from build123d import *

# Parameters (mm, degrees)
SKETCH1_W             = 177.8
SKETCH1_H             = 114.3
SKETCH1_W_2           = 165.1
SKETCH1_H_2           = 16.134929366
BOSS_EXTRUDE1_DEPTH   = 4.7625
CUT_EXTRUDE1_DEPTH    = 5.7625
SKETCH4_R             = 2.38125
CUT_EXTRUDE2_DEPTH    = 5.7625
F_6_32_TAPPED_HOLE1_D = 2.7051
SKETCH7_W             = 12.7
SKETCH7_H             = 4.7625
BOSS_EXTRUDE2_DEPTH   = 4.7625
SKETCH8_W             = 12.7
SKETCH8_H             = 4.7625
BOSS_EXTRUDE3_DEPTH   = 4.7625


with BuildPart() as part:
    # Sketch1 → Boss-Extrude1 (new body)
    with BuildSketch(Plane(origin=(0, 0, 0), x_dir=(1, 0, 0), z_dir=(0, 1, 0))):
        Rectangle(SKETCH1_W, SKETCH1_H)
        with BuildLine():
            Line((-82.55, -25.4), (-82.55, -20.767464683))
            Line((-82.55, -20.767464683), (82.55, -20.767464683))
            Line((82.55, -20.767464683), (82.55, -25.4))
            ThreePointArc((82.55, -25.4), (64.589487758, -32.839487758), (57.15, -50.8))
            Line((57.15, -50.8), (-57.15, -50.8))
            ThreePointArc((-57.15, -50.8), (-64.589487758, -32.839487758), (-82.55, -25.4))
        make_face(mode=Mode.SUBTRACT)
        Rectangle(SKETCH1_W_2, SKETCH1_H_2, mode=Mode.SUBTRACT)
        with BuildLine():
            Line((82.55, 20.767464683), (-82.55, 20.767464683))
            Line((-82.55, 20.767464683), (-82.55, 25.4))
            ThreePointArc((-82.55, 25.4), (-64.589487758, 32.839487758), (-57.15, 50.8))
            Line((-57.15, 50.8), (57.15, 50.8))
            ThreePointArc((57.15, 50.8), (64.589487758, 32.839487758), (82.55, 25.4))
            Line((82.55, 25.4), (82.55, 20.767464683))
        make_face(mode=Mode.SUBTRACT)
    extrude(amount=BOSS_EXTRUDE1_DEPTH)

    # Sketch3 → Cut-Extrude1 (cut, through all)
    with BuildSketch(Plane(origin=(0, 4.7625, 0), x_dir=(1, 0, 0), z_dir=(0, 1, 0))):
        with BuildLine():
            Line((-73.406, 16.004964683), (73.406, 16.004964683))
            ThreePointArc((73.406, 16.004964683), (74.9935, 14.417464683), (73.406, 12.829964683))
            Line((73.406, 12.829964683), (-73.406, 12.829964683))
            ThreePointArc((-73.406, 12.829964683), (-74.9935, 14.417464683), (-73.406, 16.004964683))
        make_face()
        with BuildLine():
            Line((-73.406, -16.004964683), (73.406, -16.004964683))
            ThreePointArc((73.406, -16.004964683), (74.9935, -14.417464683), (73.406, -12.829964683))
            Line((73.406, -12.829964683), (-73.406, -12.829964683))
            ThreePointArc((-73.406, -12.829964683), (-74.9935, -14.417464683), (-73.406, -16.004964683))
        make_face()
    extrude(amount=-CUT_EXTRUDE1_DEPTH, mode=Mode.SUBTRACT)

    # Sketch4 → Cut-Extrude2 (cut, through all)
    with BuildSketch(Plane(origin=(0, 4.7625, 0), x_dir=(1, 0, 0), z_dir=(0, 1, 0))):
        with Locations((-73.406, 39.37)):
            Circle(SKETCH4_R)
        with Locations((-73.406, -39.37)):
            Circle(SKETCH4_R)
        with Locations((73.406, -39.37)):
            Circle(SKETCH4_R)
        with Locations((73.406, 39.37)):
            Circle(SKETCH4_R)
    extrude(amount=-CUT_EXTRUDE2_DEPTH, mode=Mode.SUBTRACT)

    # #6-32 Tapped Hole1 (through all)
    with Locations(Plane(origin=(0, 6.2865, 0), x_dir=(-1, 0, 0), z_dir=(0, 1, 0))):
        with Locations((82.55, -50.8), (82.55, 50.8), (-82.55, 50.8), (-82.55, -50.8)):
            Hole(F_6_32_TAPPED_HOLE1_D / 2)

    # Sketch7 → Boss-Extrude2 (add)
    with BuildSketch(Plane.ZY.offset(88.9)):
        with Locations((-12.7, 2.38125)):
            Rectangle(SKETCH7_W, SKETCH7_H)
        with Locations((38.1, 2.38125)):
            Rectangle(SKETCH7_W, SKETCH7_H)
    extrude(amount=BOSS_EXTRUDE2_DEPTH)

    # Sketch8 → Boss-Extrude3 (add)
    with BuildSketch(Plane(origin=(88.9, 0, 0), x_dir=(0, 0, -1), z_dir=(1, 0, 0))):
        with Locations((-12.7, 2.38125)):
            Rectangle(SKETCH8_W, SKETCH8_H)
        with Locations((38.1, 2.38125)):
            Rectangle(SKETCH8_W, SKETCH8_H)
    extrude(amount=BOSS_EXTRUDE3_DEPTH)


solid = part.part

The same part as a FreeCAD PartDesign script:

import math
import FreeCAD as App
import Part
import Sketcher
from FreeCAD import Vector
Q = App.Units.Quantity

doc = App.newDocument("Part")
body = doc.addObject("PartDesign::Body", "Body")

sketch1 = body.newObject("Sketcher::SketchObject", "Sketch")
sketch1.AttachmentSupport = (doc.getObject("XZ_Plane"), [""])
sketch1.MapMode = "FlatFace"
sketch1.addGeometry([
    Part.LineSegment(Vector(-88.9, -57.1, 0), Vector(-88.9, 57.1, 0)),
    Part.LineSegment(Vector(-88.9, 57.1, 0), Vector(88.9, 57.1, 0)),
    Part.LineSegment(Vector(88.9, 57.1, 0), Vector(88.9, -57.1, 0)),
    Part.LineSegment(Vector(88.9, -57.1, 0), Vector(-88.9, -57.1, 0)),
    Part.ArcOfCircle(Part.Circle(Vector(-82.5, 50.8, 0), Vector(0, 0, 1), 25.4), math.radians(-90), math.radians(0)),
    Part.LineSegment(Vector(-82.5, 25.4, 0), Vector(-82.5, 20.8, 0)),
    Part.LineSegment(Vector(-82.5, 20.8, 0), Vector(82.5, 20.8, 0)),
    Part.LineSegment(Vector(82.5, 20.8, 0), Vector(82.5, 25.4, 0)),
    Part.ArcOfCircle(Part.Circle(Vector(82.5, 50.8, 0), Vector(0, 0, 1), 25.4), math.radians(180), math.radians(270)),
    Part.LineSegment(Vector(57.1, 50.8, 0), Vector(-57.1, 50.8, 0)),
    Part.LineSegment(Vector(82.5, 8.1, 0), Vector(-82.5, 8.1, 0)),
    Part.LineSegment(Vector(-82.5, 8.1, 0), Vector(-82.5, -8.1, 0)),
    Part.LineSegment(Vector(-82.5, -8.1, 0), Vector(82.5, -8.1, 0)),
    Part.LineSegment(Vector(82.5, -8.1, 0), Vector(82.5, 8.1, 0)),
    Part.LineSegment(Vector(82.5, -25.4, 0), Vector(82.5, -20.8, 0)),
    Part.LineSegment(Vector(82.5, -20.8, 0), Vector(-82.5, -20.8, 0)),
    Part.LineSegment(Vector(-82.5, -20.8, 0), Vector(-82.5, -25.4, 0)),
    Part.ArcOfCircle(Part.Circle(Vector(-82.5, -50.8, 0), Vector(0, 0, 1), 25.4), math.radians(0), math.radians(90)),
    Part.LineSegment(Vector(-57.1, -50.8, 0), Vector(57.1, -50.8, 0)),
    Part.ArcOfCircle(Part.Circle(Vector(82.5, -50.8, 0), Vector(0, 0, 1), 25.4), math.radians(90), math.radians(180)),
], False)
sketch1.addConstraint([
    Sketcher.Constraint("Coincident", 0, 2, 1, 1),
    Sketcher.Constraint("Coincident", 1, 2, 2, 1),
    Sketcher.Constraint("Coincident", 2, 2, 3, 1),
    Sketcher.Constraint("Coincident", 3, 2, 0, 1),
    Sketcher.Constraint("Coincident", 4, 1, 5, 1),
    Sketcher.Constraint("Coincident", 5, 2, 6, 1),
    Sketcher.Constraint("Coincident", 6, 2, 7, 1),
    Sketcher.Constraint("Coincident", 7, 2, 8, 2),
    Sketcher.Constraint("Coincident", 8, 1, 9, 1),
    Sketcher.Constraint("Coincident", 9, 2, 4, 2),
    Sketcher.Constraint("Coincident", 10, 2, 11, 1),
    Sketcher.Constraint("Coincident", 11, 2, 12, 1),
    Sketcher.Constraint("Coincident", 12, 2, 13, 1),
    Sketcher.Constraint("Coincident", 13, 2, 10, 1),
    Sketcher.Constraint("Coincident", 14, 2, 15, 1),
    Sketcher.Constraint("Coincident", 15, 2, 16, 1),
    Sketcher.Constraint("Coincident", 16, 2, 17, 2),
    Sketcher.Constraint("Coincident", 17, 1, 18, 1),
    Sketcher.Constraint("Coincident", 18, 2, 19, 2),
    Sketcher.Constraint("Coincident", 19, 1, 14, 1),
    Sketcher.Constraint("Vertical", 0),
    Sketcher.Constraint("Horizontal", 1),
    Sketcher.Constraint("Vertical", 2),
    Sketcher.Constraint("Horizontal", 3),
    Sketcher.Constraint("Vertical", 5),
    Sketcher.Constraint("Horizontal", 6),
    Sketcher.Constraint("Vertical", 7),
    Sketcher.Constraint("Horizontal", 9),
    Sketcher.Constraint("Horizontal", 10),
    Sketcher.Constraint("Vertical", 11),
    Sketcher.Constraint("Horizontal", 12),
    Sketcher.Constraint("Vertical", 13),
    Sketcher.Constraint("Vertical", 14),
    Sketcher.Constraint("Horizontal", 15),
    Sketcher.Constraint("Vertical", 16),
    Sketcher.Constraint("Horizontal", 18),
    Sketcher.Constraint("Equal", 4, 8),
    Sketcher.Constraint("Equal", 8, 17),
    Sketcher.Constraint("Equal", 17, 19),
    Sketcher.Constraint("Symmetric", 8, 3, 17, 3, -1, 1),
    Sketcher.Constraint("Symmetric", 4, 3, 19, 3, -1, 1),
    Sketcher.Constraint("Symmetric", 0, 2, 2, 2, -1, 1),
    Sketcher.Constraint("Symmetric", 10, 2, 12, 2, -1, 1),
    Sketcher.Constraint("Symmetric", 5, 2, 14, 2, -1, 1),
    Sketcher.Constraint("Symmetric", 4, 3, 8, 3, -2),
    Sketcher.Constraint("Horizontal", 4, 3, 8, 1),
    Sketcher.Constraint("Horizontal", 19, 3, 17, 1),
    Sketcher.Constraint("Vertical", 17, 3, 4, 1),
    Sketcher.Constraint("Vertical", 19, 3, 6, 2),
    Sketcher.Constraint("Vertical", 5, 2, 10, 2),
    Sketcher.Constraint("Vertical", 11, 2, 15, 2),
    Sketcher.Constraint("Equal", 18, 0),
    Sketcher.Constraint("Radius", 4, Q("1 in")),
    Sketcher.Constraint("DistanceX", 1, 1, 1, 2, Q("7 in")),
    Sketcher.Constraint("DistanceX", 6, 1, 6, 2, Q("6.5 in")),
    Sketcher.Constraint("DistanceY", -1, 1, 4, 3, Q("2 in")),
    Sketcher.Constraint("DistanceY", 10, 2, 5, 2, Q("0.5 in")),
    Sketcher.Constraint("DistanceY", 11, 2, 11, 1, Q("16.134929 mm")),
])
pad1 = body.newObject("PartDesign::Pad", "Pad")
pad1.Profile = sketch1
pad1.Length = Q("0.1875 in")
pad1.Reversed = True

sketch2 = body.newObject("Sketcher::SketchObject", "Sketch001")
sketch2.AttachmentSupport = (doc.getObject("XZ_Plane"), [""])
sketch2.MapMode = "FlatFace"
sketch2.AttachmentOffset = App.Placement(Vector(0, 0, -0.1875 * 25.4), App.Rotation())
sketch2.addGeometry([
    Part.LineSegment(Vector(73.4, -16, 0), Vector(-73.4, -16, 0)),
    Part.ArcOfCircle(Part.Circle(Vector(-73.4, -14.4, 0), Vector(0, 0, 1), 1.6), math.radians(90), math.radians(270)),
    Part.LineSegment(Vector(-73.4, -12.8, 0), Vector(73.4, -12.8, 0)),
    Part.ArcOfCircle(Part.Circle(Vector(73.4, -14.4, 0), Vector(0, 0, 1), 1.6), math.radians(-90), math.radians(90)),
    Part.LineSegment(Vector(-73.4, 16, 0), Vector(73.4, 16, 0)),
    Part.ArcOfCircle(Part.Circle(Vector(73.4, 14.4, 0), Vector(0, 0, 1), 1.6), math.radians(-90), math.radians(90)),
    Part.LineSegment(Vector(73.4, 12.8, 0), Vector(-73.4, 12.8, 0)),
    Part.ArcOfCircle(Part.Circle(Vector(-73.4, 14.4, 0), Vector(0, 0, 1), 1.6), math.radians(90), math.radians(270)),
], False)
sketch2.addConstraint([
    Sketcher.Constraint("Tangent", 0, 2, 1, 2),
    Sketcher.Constraint("Tangent", 1, 1, 2, 1),
    Sketcher.Constraint("Tangent", 2, 2, 3, 2),
    Sketcher.Constraint("Tangent", 3, 1, 0, 1),
    Sketcher.Constraint("Tangent", 4, 2, 5, 2),
    Sketcher.Constraint("Tangent", 5, 1, 6, 1),
    Sketcher.Constraint("Tangent", 6, 2, 7, 2),
    Sketcher.Constraint("Tangent", 7, 1, 4, 1),
    Sketcher.Constraint("Horizontal", 0),
    Sketcher.Constraint("Horizontal", 2),
    Sketcher.Constraint("Horizontal", 4),
    Sketcher.Constraint("Horizontal", 6),
    Sketcher.Constraint("Equal", 3, 5),
    Sketcher.Constraint("Symmetric", 1, 3, 5, 3, -1, 1),
    Sketcher.Constraint("Vertical", 3, 3, 5, 3),
    Sketcher.Constraint("Vertical", 1, 3, 7, 3),
    Sketcher.Constraint("Radius", 1, Q("0.0625 in")),
    Sketcher.Constraint("DistanceX", 0, 2, 0, 1, Q("5.78 in")),
    Sketcher.Constraint("DistanceY", 3, 3, 5, 3, Q("28.834929 mm")),
])
pocket1 = body.newObject("PartDesign::Pocket", "Pocket")
pocket1.Profile = sketch2
pocket1.Type = "ThroughAll"
pocket1.Reversed = True

sketch3 = body.newObject("Sketcher::SketchObject", "Sketch002")
sketch3.AttachmentSupport = (doc.getObject("XZ_Plane"), [""])
sketch3.MapMode = "FlatFace"
sketch3.AttachmentOffset = App.Placement(Vector(0, 0, -0.1875 * 25.4), App.Rotation())
sketch3.addGeometry([
    Part.Circle(Vector(-73.4, -39.4, 0), Vector(0, 0, 1), 2.4),
    Part.Circle(Vector(-73.4, 39.4, 0), Vector(0, 0, 1), 2.4),
    Part.Circle(Vector(73.4, 39.4, 0), Vector(0, 0, 1), 2.4),
    Part.Circle(Vector(73.4, -39.4, 0), Vector(0, 0, 1), 2.4),
], False)
sketch3.addConstraint([
    Sketcher.Constraint("Equal", 0, 1),
    Sketcher.Constraint("Equal", 1, 2),
    Sketcher.Constraint("Equal", 2, 3),
    Sketcher.Constraint("Symmetric", 0, 3, 2, 3, -1, 1),
    Sketcher.Constraint("Symmetric", 1, 3, 3, 3, -1, 1),
    Sketcher.Constraint("Symmetric", 1, 3, 2, 3, -2),
    Sketcher.Constraint("Diameter", 0, Q("0.1875 in")),
    Sketcher.Constraint("DistanceY", 0, 3, 1, 3, Q("3.1 in")),
    Sketcher.Constraint("DistanceX", 0, 3, -1, 1, Q("2.89 in")),
])
pocket2 = body.newObject("PartDesign::Pocket", "Pocket001")
pocket2.Profile = sketch3
pocket2.Type = "ThroughAll"
pocket2.Reversed = True

sketch4 = body.newObject("Sketcher::SketchObject", "Sketch003")
sketch4.AttachmentSupport = (doc.getObject("XZ_Plane"), [""])
sketch4.MapMode = "FlatFace"
sketch4.AttachmentOffset = App.Placement(Vector(0, 0, -0.2475 * 25.4), App.Rotation())
sketch4.addGeometry([
    Part.Circle(Vector(-82.5, -50.8, 0), Vector(0, 0, 1), 1.4),
    Part.Circle(Vector(-82.5, 50.8, 0), Vector(0, 0, 1), 1.4),
    Part.Circle(Vector(82.5, 50.8, 0), Vector(0, 0, 1), 1.4),
    Part.Circle(Vector(82.5, -50.8, 0), Vector(0, 0, 1), 1.4),
], False)
sketch4.addConstraint([
    Sketcher.Constraint("Equal", 0, 1),
    Sketcher.Constraint("Equal", 1, 2),
    Sketcher.Constraint("Equal", 2, 3),
    Sketcher.Constraint("Symmetric", 0, 3, 2, 3, -1, 1),
    Sketcher.Constraint("Symmetric", 1, 3, 3, 3, -1, 1),
    Sketcher.Constraint("Symmetric", 1, 3, 2, 3, -2),
    Sketcher.Constraint("DistanceY", 0, 3, -1, 1, Q("2 in")),
    Sketcher.Constraint("Diameter", 0, Q("0.1065 in")),
    Sketcher.Constraint("DistanceX", 1, 3, 2, 3, Q("6.5 in")),
])
doc.recompute()
hole = body.newObject("PartDesign::Hole", "Hole")
hole.Profile = sketch4
hole.ThreadType = "None"
hole.Diameter = Q("0.1065 in")
hole.DepthType = "ThroughAll"
hole.Reversed = True

sketch5 = body.newObject("Sketcher::SketchObject", "Sketch004")
sketch5.AttachmentSupport = (doc.getObject("YZ_Plane"), [""])
sketch5.MapMode = "FlatFace"
sketch5.AttachmentOffset = App.Placement(Vector(0, 0, -3.5 * 25.4), App.Rotation())
sketch5.addGeometry([
    Part.LineSegment(Vector(4.8, -19.1, 0), Vector(0, -19.1, 0)),
    Part.LineSegment(Vector(0, -19.1, 0), Vector(0, -6.3, 0)),
    Part.LineSegment(Vector(0, -6.3, 0), Vector(4.8, -6.3, 0)),
    Part.LineSegment(Vector(4.8, -6.3, 0), Vector(4.8, -19.1, 0)),
    Part.LineSegment(Vector(4.8, 31.8, 0), Vector(0, 31.8, 0)),
    Part.LineSegment(Vector(0, 31.8, 0), Vector(0, 44.5, 0)),
    Part.LineSegment(Vector(0, 44.5, 0), Vector(4.8, 44.5, 0)),
    Part.LineSegment(Vector(4.8, 44.5, 0), Vector(4.8, 31.8, 0)),
], False)
sketch5.addConstraint([
    Sketcher.Constraint("Coincident", 0, 2, 1, 1),
    Sketcher.Constraint("Coincident", 1, 2, 2, 1),
    Sketcher.Constraint("Coincident", 2, 2, 3, 1),
    Sketcher.Constraint("Coincident", 3, 2, 0, 1),
    Sketcher.Constraint("Coincident", 4, 2, 5, 1),
    Sketcher.Constraint("Coincident", 5, 2, 6, 1),
    Sketcher.Constraint("Coincident", 6, 2, 7, 1),
    Sketcher.Constraint("Coincident", 7, 2, 4, 1),
    Sketcher.Constraint("Horizontal", 0),
    Sketcher.Constraint("Vertical", 1),
    Sketcher.Constraint("Horizontal", 2),
    Sketcher.Constraint("Vertical", 3),
    Sketcher.Constraint("Horizontal", 4),
    Sketcher.Constraint("Vertical", 5),
    Sketcher.Constraint("Horizontal", 6),
    Sketcher.Constraint("Vertical", 7),
    Sketcher.Constraint("PointOnObject", 0, 2, -2),
    Sketcher.Constraint("PointOnObject", 4, 2, -2),
    Sketcher.Constraint("Vertical", 3, 2, 6, 2),
    Sketcher.Constraint("Equal", 3, 5),
    Sketcher.Constraint("DistanceY", 1, 1, 1, 2, Q("0.5 in")),
    Sketcher.Constraint("DistanceY", 0, 2, 4, 2, Q("2 in")),
    Sketcher.Constraint("DistanceX", 0, 2, 0, 1, Q("0.1875 in")),
    Sketcher.Constraint("DistanceY", 0, 2, -1, 1, Q("0.75 in")),
])
pad2 = body.newObject("PartDesign::Pad", "Pad001")
pad2.Profile = sketch5
pad2.Length = Q("0.1875 in")
pad2.Reversed = True

sketch6 = body.newObject("Sketcher::SketchObject", "Sketch005")
sketch6.AttachmentSupport = (doc.getObject("YZ_Plane"), [""])
sketch6.MapMode = "FlatFace"
sketch6.AttachmentOffset = App.Placement(Vector(0, 0, 3.5 * 25.4), App.Rotation())
sketch6.addGeometry([
    Part.LineSegment(Vector(4.8, 19.1, 0), Vector(0, 19.1, 0)),
    Part.LineSegment(Vector(0, 19.1, 0), Vector(0, 6.3, 0)),
    Part.LineSegment(Vector(0, 6.3, 0), Vector(4.8, 6.3, 0)),
    Part.LineSegment(Vector(4.8, 6.3, 0), Vector(4.8, 19.1, 0)),
    Part.LineSegment(Vector(4.8, -31.8, 0), Vector(0, -31.8, 0)),
    Part.LineSegment(Vector(0, -31.8, 0), Vector(0, -44.5, 0)),
    Part.LineSegment(Vector(0, -44.5, 0), Vector(4.8, -44.5, 0)),
    Part.LineSegment(Vector(4.8, -44.5, 0), Vector(4.8, -31.8, 0)),
], False)
sketch6.addConstraint([
    Sketcher.Constraint("Coincident", 0, 2, 1, 1),
    Sketcher.Constraint("Coincident", 1, 2, 2, 1),
    Sketcher.Constraint("Coincident", 2, 2, 3, 1),
    Sketcher.Constraint("Coincident", 3, 2, 0, 1),
    Sketcher.Constraint("Coincident", 4, 2, 5, 1),
    Sketcher.Constraint("Coincident", 5, 2, 6, 1),
    Sketcher.Constraint("Coincident", 6, 2, 7, 1),
    Sketcher.Constraint("Coincident", 7, 2, 4, 1),
    Sketcher.Constraint("Horizontal", 0),
    Sketcher.Constraint("Vertical", 1),
    Sketcher.Constraint("Horizontal", 2),
    Sketcher.Constraint("Vertical", 3),
    Sketcher.Constraint("Horizontal", 4),
    Sketcher.Constraint("Vertical", 5),
    Sketcher.Constraint("Horizontal", 6),
    Sketcher.Constraint("Vertical", 7),
    Sketcher.Constraint("PointOnObject", 0, 2, -2),
    Sketcher.Constraint("PointOnObject", 4, 2, -2),
    Sketcher.Constraint("Vertical", 3, 2, 6, 2),
    Sketcher.Constraint("Equal", 3, 5),
    Sketcher.Constraint("DistanceY", 1, 2, 1, 1, Q("0.5 in")),
    Sketcher.Constraint("DistanceY", 4, 2, 0, 2, Q("2 in")),
    Sketcher.Constraint("DistanceX", 0, 2, 0, 1, Q("0.1875 in")),
    Sketcher.Constraint("DistanceY", -1, 1, 0, 2, Q("0.75 in")),
])
pad3 = body.newObject("PartDesign::Pad", "Pad002")
pad3.Profile = sketch6
pad3.Length = Q("0.1875 in")

doc.recompute()
